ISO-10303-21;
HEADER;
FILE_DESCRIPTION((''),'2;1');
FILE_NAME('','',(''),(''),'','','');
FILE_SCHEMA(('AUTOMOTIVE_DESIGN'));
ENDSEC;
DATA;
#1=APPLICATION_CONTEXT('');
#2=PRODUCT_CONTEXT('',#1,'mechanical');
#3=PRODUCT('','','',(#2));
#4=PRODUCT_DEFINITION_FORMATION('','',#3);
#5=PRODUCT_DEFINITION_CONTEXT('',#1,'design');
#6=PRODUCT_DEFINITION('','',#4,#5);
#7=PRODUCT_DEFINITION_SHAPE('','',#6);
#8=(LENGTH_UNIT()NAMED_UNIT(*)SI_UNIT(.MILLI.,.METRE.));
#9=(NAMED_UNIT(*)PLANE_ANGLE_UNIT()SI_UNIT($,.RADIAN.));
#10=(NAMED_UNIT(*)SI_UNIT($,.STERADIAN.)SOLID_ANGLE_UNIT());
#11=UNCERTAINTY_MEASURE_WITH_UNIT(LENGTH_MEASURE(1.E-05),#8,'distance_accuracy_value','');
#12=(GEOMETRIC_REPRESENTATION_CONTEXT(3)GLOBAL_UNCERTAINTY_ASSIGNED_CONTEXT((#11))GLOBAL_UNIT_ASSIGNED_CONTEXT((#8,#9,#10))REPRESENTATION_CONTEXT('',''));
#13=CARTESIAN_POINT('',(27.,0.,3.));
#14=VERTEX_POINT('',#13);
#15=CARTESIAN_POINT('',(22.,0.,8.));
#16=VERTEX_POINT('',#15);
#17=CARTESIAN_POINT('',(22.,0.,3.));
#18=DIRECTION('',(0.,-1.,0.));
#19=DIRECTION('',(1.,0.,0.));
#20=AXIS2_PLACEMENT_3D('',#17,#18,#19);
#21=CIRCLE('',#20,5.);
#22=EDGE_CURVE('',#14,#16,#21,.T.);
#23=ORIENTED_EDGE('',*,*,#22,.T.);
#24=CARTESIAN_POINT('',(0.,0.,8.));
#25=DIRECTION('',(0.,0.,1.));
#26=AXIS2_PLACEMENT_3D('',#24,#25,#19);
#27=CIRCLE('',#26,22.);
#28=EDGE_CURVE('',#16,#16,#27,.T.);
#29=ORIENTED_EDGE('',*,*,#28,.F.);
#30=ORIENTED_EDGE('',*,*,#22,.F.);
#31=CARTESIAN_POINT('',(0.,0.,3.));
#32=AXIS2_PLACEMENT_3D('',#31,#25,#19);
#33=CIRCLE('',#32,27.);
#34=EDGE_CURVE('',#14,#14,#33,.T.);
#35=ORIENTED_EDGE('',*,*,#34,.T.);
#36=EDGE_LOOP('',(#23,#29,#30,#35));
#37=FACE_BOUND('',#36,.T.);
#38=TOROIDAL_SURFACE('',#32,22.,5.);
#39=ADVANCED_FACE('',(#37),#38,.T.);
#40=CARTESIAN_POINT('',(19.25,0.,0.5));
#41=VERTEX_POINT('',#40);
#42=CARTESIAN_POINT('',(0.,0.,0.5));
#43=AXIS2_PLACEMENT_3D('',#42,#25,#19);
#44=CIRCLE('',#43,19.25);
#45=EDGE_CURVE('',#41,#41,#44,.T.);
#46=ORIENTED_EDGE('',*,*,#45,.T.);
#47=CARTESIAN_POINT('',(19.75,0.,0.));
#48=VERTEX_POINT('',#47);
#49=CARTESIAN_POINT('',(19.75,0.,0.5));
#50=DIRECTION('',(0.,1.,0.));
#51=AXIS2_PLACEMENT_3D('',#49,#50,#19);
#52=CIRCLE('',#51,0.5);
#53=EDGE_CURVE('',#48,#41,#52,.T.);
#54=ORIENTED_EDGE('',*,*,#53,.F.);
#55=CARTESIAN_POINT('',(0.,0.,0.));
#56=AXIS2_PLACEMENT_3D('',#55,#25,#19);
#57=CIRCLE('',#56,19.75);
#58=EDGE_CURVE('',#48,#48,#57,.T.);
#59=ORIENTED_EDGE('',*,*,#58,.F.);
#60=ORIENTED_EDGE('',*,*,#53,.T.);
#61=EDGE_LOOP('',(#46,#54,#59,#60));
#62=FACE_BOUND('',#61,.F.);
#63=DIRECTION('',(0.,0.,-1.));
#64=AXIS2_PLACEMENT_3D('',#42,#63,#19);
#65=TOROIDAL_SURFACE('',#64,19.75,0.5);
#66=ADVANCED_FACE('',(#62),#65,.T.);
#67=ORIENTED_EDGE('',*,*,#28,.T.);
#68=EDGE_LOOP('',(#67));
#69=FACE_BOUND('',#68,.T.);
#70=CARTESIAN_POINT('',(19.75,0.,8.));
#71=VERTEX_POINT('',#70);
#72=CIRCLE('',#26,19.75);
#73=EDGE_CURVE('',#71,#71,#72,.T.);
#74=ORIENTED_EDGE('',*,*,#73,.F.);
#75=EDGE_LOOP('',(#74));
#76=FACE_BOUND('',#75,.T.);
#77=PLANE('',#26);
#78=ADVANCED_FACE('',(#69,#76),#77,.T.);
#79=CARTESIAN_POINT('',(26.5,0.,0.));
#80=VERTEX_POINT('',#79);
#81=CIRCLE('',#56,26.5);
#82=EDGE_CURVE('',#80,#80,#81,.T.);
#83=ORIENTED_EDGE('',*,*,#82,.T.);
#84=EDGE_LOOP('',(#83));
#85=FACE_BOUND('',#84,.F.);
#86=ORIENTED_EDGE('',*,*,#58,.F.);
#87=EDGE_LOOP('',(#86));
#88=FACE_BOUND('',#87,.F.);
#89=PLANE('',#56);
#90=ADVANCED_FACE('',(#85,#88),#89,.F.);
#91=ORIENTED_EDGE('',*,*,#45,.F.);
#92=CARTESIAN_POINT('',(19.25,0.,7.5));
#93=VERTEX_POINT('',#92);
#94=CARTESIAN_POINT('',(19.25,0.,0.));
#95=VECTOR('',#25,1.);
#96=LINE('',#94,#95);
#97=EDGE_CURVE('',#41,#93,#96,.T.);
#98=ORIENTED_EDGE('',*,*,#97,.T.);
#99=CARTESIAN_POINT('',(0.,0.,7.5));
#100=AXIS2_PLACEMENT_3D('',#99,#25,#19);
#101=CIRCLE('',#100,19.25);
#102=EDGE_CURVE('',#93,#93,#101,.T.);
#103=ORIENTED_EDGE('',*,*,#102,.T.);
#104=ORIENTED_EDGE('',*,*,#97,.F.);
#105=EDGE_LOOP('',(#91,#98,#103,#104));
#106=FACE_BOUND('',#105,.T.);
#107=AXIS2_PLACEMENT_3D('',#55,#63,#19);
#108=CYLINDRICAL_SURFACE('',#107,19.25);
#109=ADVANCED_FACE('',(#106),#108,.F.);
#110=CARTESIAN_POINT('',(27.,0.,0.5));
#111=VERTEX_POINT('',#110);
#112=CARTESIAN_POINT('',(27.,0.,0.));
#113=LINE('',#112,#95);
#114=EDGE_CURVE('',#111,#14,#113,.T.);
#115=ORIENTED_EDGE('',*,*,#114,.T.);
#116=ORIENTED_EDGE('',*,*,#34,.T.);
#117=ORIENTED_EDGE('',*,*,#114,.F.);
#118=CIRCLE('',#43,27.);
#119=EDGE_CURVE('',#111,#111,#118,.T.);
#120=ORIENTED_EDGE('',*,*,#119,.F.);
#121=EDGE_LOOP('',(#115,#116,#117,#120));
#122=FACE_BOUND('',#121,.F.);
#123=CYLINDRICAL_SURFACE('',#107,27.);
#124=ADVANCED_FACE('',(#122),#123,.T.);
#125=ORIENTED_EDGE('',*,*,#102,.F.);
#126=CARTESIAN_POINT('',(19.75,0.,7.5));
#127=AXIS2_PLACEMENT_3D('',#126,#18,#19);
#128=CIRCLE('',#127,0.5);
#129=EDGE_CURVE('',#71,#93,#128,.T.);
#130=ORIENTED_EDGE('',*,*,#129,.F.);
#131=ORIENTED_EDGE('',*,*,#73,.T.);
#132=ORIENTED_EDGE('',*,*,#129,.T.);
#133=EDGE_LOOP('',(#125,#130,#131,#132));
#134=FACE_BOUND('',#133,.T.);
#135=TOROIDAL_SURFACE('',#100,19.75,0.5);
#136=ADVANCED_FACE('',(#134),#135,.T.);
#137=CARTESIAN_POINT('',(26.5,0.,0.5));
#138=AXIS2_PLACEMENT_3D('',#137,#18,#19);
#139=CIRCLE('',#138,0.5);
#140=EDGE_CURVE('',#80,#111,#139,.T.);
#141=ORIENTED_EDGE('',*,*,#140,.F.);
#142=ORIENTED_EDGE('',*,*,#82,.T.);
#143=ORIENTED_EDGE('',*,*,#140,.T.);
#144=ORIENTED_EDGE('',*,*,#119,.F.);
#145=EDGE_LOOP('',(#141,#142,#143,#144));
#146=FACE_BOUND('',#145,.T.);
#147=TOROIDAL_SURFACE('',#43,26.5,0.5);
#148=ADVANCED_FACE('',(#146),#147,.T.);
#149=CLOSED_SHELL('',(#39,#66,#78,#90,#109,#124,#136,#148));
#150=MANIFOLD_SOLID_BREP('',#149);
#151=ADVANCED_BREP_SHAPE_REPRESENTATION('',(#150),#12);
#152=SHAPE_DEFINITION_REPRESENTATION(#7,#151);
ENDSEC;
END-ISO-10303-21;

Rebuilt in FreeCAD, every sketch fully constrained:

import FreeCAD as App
import Part
import Sketcher


def edges_at(feature, points):
    """Names of the edges that pass closest to the given points."""
    edges = feature.Shape.Edges
    near = lambda p: min(range(len(edges)), key=lambda i: edges[i].distToShape(Part.Vertex(*p))[0])
    return sorted({f"Edge{near(p) + 1}" for p in points})

doc = App.newDocument("Part")
params = doc.addObject("Spreadsheet::Sheet", "Params")
for row, (alias, value) in enumerate([
    ("sketch1_diameter", "54 mm"),
    ("sketch1_diameter2", "38.5 mm"),
    ("pad1_length", "8 mm"),
    ("fillet_radius", "5 mm"),
    ("fillet2_radius", "0.5 mm"),
    ("fillet3_radius", "0.5 mm"),
], start=1):
    params.set(f"A{row}", alias)
    params.set(f"B{row}", "=" + value)
    params.setAlias(f"B{row}", alias)

body = doc.addObject("PartDesign::Body", "Body")

# Sketch on XY plane
sketch1 = body.newObject("Sketcher::SketchObject", "Sketch")
sketch1.AttachmentSupport = (doc.getObject("XY_Plane"), [""])
sketch1.MapMode = "FlatFace"
sketch1.addGeometry([
    Part.Circle(App.Vector(0, 0, 0), App.Vector(0, 0, 1), 27),
    Part.Circle(App.Vector(0, 0, 0), App.Vector(0, 0, 1), 19.25),
], False)
sketch1.addConstraint([
    Sketcher.Constraint("Coincident", 0, 3, -1, 1),
    Sketcher.Constraint("Coincident", 1, 3, -1, 1),
    Sketcher.Constraint("Diameter", 0, 54.0),
    Sketcher.Constraint("Diameter", 1, 38.5),
])
sketch1.setExpression("Constraints[2]", "Params.sketch1_diameter")
sketch1.setExpression("Constraints[3]", "Params.sketch1_diameter2")
pad1 = body.newObject("PartDesign::Pad", "Pad")
pad1.Profile = sketch1
pad1.setExpression("Length", "Params.pad1_length")
doc.recompute()

fillet = body.newObject("PartDesign::Fillet", "Fillet")
fillet.Base = (pad1, edges_at(pad1, [(-27, 0, 8)]))
fillet.setExpression("Radius", "Params.fillet_radius")
doc.recompute()

fillet2 = body.newObject("PartDesign::Fillet", "Fillet001")
fillet2.Base = (fillet, edges_at(fillet, [(-19.25, 0, 8), (-19.25, 0, 0)]))
fillet2.setExpression("Radius", "Params.fillet2_radius")
doc.recompute()

fillet3 = body.newObject("PartDesign::Fillet", "Fillet002")
fillet3.Base = (fillet2, edges_at(fillet2, [(-27, 0, 0)]))
fillet3.setExpression("Radius", "Params.fillet3_radius")

doc.recompute()
